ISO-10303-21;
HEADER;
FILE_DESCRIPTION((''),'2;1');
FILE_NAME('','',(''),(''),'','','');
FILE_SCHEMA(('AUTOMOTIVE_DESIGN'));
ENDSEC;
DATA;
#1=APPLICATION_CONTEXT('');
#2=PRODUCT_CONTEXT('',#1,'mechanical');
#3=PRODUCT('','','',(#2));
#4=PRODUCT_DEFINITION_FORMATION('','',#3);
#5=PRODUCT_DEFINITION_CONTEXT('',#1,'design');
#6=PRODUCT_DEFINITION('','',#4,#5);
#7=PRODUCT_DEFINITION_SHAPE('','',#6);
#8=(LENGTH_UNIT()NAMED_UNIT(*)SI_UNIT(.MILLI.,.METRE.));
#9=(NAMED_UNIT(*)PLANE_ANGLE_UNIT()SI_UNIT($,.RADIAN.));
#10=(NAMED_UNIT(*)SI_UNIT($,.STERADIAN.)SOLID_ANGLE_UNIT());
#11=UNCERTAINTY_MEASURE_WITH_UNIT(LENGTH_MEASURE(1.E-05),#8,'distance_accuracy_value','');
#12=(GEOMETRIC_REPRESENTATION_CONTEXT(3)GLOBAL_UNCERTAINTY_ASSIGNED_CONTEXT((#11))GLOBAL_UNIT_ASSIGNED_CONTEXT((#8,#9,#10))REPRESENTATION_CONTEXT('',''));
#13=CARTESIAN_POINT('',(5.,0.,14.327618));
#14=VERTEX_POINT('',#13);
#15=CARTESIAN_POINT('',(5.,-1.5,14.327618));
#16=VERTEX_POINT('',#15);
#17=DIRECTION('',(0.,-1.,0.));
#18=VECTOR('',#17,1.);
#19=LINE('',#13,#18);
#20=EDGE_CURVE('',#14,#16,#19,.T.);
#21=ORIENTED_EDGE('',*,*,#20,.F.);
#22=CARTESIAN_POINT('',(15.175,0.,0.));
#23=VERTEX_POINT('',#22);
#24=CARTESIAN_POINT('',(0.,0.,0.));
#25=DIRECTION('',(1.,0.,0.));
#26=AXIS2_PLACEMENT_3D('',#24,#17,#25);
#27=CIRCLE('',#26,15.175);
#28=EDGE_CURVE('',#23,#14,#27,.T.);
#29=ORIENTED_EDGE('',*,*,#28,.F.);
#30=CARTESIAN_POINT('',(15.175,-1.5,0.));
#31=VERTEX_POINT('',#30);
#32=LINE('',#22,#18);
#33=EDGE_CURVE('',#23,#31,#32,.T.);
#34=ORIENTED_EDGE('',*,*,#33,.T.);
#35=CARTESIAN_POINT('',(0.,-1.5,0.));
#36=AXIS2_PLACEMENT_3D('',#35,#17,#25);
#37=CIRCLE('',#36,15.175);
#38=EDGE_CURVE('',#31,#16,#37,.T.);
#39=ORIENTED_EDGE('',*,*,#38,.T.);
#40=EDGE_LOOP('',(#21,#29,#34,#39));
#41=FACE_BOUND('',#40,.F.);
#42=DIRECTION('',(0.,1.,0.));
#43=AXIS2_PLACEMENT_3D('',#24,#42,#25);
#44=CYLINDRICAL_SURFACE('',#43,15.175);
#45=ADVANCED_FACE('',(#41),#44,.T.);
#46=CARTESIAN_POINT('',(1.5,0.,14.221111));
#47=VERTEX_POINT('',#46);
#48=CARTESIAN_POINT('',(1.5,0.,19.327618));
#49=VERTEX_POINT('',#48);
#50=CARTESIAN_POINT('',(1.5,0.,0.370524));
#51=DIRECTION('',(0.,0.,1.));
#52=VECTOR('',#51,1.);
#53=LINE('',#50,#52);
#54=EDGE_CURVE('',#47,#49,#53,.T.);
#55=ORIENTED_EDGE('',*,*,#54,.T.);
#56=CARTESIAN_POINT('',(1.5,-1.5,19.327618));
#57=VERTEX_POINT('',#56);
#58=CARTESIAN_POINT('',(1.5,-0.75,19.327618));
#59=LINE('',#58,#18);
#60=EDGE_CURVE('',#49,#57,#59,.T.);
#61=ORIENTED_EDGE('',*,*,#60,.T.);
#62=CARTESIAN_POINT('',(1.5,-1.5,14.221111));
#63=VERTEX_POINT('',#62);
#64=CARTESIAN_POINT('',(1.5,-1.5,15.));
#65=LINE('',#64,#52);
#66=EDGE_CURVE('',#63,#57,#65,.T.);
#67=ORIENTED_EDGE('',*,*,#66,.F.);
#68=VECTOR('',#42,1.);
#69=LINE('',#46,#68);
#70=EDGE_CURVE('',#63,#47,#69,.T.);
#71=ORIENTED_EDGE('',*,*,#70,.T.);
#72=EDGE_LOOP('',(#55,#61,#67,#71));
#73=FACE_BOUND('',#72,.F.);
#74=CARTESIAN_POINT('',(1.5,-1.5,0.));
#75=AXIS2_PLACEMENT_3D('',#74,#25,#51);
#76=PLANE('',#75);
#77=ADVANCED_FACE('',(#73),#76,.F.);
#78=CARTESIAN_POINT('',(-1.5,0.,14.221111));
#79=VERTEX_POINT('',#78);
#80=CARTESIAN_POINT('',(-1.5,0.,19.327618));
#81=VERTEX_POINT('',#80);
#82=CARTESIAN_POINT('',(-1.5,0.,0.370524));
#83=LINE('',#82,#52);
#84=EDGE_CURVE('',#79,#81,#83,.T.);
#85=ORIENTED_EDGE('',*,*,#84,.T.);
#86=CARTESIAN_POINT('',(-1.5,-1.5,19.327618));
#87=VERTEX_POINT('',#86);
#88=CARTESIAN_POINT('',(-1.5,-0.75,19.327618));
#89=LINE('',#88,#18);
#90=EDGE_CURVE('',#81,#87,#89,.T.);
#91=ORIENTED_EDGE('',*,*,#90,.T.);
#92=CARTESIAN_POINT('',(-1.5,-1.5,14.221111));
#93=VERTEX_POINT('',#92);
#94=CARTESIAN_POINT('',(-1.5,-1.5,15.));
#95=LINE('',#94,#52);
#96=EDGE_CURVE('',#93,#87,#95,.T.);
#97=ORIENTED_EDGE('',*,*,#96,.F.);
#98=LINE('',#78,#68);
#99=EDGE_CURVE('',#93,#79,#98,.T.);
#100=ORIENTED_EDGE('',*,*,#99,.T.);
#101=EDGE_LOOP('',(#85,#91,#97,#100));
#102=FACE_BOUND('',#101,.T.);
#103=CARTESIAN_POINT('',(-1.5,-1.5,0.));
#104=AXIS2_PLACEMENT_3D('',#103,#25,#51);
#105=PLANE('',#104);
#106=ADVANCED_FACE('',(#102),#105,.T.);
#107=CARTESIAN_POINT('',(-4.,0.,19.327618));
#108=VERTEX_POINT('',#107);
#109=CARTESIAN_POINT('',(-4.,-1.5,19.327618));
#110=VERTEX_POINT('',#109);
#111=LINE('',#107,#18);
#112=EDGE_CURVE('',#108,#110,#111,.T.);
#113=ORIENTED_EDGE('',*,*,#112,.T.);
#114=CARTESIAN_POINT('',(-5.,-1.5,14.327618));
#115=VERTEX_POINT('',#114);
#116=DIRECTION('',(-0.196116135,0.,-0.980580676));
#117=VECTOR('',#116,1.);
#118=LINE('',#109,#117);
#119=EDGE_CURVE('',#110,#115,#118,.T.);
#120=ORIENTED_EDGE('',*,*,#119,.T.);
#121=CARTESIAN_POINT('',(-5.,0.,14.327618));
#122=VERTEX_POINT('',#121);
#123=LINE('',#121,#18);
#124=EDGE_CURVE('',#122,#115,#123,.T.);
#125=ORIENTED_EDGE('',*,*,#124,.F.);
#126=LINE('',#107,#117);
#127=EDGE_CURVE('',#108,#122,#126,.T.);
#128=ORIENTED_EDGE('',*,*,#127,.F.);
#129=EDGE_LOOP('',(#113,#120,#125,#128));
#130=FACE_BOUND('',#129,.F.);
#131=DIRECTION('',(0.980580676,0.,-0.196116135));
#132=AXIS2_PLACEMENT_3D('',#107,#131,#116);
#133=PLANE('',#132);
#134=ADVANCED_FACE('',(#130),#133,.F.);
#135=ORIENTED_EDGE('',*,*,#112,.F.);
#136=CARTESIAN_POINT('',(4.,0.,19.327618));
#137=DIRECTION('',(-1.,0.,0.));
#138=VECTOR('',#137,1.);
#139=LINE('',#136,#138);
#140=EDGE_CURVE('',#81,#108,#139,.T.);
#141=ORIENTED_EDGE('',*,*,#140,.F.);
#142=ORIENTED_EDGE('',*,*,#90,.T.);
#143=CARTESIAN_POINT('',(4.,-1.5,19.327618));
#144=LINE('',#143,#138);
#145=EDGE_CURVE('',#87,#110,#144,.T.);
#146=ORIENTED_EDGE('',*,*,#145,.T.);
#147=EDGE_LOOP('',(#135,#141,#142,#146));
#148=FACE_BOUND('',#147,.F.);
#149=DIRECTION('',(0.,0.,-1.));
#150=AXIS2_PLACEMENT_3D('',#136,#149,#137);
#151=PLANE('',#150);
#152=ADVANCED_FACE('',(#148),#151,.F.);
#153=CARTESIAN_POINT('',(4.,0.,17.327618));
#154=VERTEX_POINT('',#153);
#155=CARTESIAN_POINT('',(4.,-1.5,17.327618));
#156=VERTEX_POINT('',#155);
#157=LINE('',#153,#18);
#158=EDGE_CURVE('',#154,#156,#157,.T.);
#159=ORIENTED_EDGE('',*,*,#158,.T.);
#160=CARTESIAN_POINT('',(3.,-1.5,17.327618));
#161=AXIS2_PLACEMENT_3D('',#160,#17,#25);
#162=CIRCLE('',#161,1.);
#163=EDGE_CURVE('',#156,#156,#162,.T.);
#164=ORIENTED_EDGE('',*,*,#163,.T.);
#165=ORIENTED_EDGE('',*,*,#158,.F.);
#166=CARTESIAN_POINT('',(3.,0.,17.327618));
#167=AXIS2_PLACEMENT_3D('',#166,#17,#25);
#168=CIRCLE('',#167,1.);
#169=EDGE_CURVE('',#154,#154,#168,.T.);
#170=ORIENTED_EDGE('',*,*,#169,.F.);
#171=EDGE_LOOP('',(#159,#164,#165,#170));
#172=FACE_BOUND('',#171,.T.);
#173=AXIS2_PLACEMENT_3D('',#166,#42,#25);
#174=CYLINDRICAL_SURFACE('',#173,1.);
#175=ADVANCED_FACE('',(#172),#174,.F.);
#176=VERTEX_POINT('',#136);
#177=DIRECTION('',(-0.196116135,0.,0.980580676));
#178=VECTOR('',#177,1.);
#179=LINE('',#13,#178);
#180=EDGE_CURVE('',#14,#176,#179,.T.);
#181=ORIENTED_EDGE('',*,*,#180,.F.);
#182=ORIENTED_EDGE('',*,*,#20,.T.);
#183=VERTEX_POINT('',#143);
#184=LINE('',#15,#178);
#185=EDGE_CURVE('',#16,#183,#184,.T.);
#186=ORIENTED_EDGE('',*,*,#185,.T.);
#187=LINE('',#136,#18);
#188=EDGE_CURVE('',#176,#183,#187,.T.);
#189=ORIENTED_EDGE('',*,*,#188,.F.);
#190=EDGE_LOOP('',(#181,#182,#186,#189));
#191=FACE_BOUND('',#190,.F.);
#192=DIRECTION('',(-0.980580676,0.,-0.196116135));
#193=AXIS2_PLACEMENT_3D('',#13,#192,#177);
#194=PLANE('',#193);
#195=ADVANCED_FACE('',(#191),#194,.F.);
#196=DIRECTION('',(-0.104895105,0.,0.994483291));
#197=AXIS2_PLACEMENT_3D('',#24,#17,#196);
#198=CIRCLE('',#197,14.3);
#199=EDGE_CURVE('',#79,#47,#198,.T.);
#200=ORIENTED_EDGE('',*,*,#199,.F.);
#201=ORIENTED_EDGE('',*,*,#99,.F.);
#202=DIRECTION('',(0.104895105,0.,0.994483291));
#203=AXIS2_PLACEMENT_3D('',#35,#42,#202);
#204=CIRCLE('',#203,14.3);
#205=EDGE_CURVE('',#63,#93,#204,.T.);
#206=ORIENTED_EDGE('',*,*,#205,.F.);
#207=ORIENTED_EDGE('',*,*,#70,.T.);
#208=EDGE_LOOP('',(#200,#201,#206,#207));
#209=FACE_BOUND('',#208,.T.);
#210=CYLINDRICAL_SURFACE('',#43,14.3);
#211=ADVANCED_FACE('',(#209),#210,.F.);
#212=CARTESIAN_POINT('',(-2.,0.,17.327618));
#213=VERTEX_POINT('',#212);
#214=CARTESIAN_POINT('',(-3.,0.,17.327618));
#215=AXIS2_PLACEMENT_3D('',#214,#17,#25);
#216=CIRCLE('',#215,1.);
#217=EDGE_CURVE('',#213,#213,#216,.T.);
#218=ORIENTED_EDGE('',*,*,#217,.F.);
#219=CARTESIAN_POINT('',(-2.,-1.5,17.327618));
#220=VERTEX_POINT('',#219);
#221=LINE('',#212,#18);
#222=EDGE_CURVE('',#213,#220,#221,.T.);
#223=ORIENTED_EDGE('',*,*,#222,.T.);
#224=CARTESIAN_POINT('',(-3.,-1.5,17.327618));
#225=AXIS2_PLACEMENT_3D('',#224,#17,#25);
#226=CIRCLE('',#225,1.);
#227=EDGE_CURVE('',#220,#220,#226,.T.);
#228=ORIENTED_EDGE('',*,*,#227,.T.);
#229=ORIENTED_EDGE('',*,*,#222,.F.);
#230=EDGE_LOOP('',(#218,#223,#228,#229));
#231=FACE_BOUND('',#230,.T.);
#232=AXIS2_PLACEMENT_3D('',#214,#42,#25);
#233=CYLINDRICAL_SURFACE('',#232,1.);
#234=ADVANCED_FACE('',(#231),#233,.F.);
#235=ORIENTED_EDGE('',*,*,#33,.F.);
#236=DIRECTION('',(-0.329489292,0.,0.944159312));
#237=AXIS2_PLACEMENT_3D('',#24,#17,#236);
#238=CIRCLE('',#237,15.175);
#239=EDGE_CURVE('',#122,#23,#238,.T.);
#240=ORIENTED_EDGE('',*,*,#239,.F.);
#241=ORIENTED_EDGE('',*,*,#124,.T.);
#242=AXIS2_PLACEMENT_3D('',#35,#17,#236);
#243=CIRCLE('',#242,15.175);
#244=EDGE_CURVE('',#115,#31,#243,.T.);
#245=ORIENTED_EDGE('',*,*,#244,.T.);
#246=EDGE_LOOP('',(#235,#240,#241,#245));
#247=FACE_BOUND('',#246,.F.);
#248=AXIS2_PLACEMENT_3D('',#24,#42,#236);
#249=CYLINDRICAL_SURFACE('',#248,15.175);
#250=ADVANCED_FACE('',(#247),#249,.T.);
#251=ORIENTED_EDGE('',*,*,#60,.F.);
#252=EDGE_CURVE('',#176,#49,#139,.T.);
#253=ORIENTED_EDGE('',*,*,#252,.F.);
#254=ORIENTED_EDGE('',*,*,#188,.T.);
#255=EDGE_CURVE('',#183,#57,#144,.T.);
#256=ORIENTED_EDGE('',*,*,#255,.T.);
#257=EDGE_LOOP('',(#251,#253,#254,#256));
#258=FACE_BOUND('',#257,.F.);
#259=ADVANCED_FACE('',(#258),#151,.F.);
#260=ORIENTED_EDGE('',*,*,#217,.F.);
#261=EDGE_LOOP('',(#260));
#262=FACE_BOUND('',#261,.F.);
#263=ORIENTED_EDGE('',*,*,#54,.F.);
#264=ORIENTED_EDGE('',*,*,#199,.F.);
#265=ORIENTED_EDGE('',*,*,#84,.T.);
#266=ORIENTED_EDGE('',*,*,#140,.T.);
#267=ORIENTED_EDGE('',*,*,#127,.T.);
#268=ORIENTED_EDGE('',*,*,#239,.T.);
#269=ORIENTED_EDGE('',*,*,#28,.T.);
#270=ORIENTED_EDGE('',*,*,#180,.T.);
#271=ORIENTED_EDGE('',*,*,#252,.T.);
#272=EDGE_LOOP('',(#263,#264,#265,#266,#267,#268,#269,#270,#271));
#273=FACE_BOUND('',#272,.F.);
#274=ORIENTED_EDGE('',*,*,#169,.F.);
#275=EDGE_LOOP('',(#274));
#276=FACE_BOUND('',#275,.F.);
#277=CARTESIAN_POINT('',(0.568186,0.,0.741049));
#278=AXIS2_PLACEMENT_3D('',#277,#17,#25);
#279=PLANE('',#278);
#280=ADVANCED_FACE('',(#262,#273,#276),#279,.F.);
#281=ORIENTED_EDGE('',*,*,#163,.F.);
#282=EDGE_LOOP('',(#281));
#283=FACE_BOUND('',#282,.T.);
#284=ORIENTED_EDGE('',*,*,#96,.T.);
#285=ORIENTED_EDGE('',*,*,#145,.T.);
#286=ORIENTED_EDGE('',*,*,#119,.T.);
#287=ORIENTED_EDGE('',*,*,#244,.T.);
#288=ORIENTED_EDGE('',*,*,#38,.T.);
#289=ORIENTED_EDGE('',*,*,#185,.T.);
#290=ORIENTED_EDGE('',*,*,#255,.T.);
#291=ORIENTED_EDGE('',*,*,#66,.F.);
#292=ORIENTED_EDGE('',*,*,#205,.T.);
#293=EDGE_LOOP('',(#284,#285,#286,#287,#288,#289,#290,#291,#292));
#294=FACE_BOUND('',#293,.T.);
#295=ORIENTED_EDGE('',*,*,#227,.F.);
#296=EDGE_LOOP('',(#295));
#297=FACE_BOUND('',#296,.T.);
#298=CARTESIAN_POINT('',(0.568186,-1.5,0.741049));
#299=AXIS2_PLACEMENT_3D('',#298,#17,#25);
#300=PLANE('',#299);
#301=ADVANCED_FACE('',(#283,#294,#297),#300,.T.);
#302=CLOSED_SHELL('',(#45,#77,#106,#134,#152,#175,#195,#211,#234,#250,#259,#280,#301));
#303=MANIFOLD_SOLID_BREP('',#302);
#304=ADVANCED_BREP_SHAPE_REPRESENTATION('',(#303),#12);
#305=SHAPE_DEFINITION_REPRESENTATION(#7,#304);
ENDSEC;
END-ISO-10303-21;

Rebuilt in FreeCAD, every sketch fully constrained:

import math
import FreeCAD as App
import Part
import Sketcher
from FreeCAD import Vector
Q = App.Units.Quantity


def add_polygon(sketch, points):
    """Adds a closed chain of lines whose ends are joined by coincident constraints."""
    first, n = sketch.GeometryCount, len(points)
    for a, b in zip(points, points[1:] + points[:1]):
        sketch.addGeometry(Part.LineSegment(App.Vector(*a, 0), App.Vector(*b, 0)), False)
    for i in range(n):
        sketch.addConstraint(Sketcher.Constraint("Coincident", first + i, 2, first + (i + 1) % n, 1))

doc = App.newDocument("Part")
body = doc.addObject("PartDesign::Body", "Body")

# Sketch on XZ plane
sketch1 = body.newObject("Sketcher::SketchObject", "Sketch")
sketch1.AttachmentSupport = (doc.getObject("XZ_Plane"), [""])
sketch1.MapMode = "FlatFace"
sketch1.addGeometry(Part.ArcOfCircle(Part.Circle(Vector(0, 0, 0), Vector(0, 0, 1), 15.2), math.radians(109), math.radians(360)), False)
sketch1.addGeometry(Part.ArcOfCircle(Part.Circle(Vector(0, 0, 0), Vector(0, 0, 1), 15.2), math.radians(0), math.radians(71)), False)
sketch1.addGeometry(Part.LineSegment(Vector(5, 14.3, 0), Vector(4, 19.3, 0)), False)
sketch1.addGeometry(Part.LineSegment(Vector(4, 19.3, 0), Vector(-4, 19.3, 0)), False)
sketch1.addGeometry(Part.LineSegment(Vector(-4, 19.3, 0), Vector(-5, 14.3, 0)), False)
sketch1.addGeometry(Part.Circle(Vector(0, 0, 0), Vector(0, 0, 1), 14.3), False)
sketch1.addGeometry(Part.Circle(Vector(-3, 17.3, 0), Vector(0, 0, 1), 1), False)
sketch1.addGeometry(Part.Circle(Vector(3, 17.3, 0), Vector(0, 0, 1), 1), False)
sketch1.addConstraint(Sketcher.Constraint("Tangent", 0, 2, 1, 1))
sketch1.addConstraint(Sketcher.Constraint("Coincident", 1, 2, 2, 1))
sketch1.addConstraint(Sketcher.Constraint("Coincident", 2, 2, 3, 1))
sketch1.addConstraint(Sketcher.Constraint("Coincident", 3, 2, 4, 1))
sketch1.addConstraint(Sketcher.Constraint("Coincident", 4, 2, 0, 1))
sketch1.addConstraint(Sketcher.Constraint("Horizontal", 3))
sketch1.addConstraint(Sketcher.Constraint("Coincident", 0, 3, -1, 1))
sketch1.addConstraint(Sketcher.Constraint("Coincident", 5, 3, -1, 1))
sketch1.addConstraint(Sketcher.Constraint("Equal", 0, 1))
sketch1.addConstraint(Sketcher.Constraint("Equal", 6, 7))
sketch1.addConstraint(Sketcher.Constraint("Symmetric", 6, 3, 7, 3, -2))
sketch1.addConstraint(Sketcher.Constraint("PointOnObject", 0, 2, -1))
sketch1.addConstraint(Sketcher.Constraint("Horizontal", 1, 2, 4, 2))
sketch1.addConstraint(Sketcher.Constraint("Equal", 2, 4))
sketch1.addConstraint(Sketcher.Constraint("Diameter", 6, Q("2 mm")))
sketch1.addConstraint(Sketcher.Constraint("Diameter", 5, Q("28.6 mm")))
sketch1.addConstraint(Sketcher.Constraint("DistanceX", 3, 2, 3, 1, Q("8 mm")))
sketch1.addConstraint(Sketcher.Constraint("DistanceX", 6, 3, -1, 1, Q("3 mm")))
sketch1.addConstraint(Sketcher.Constraint("DistanceX", -1, 1, 1, 2, Q("5 mm")))
sketch1.addConstraint(Sketcher.Constraint("Radius", 0, Q("15.175 mm")))
sketch1.addConstraint(Sketcher.Constraint("DistanceY", 1, 2, 7, 3, Q("3 mm")))
sketch1.addConstraint(Sketcher.Constraint("DistanceY", 7, 3, 2, 2, Q("2 mm")))
pad1 = body.newObject("PartDesign::Pad", "Pad")
pad1.Profile = sketch1
pad1.Length = 1.5

# Sketch on XZ plane
sketch2 = body.newObject("Sketcher::SketchObject", "Sketch001")
sketch2.AttachmentSupport = (doc.getObject("XZ_Plane"), [""])
sketch2.MapMode = "FlatFace"
sketch2.AttachmentOffset = App.Placement(Vector(0, 0, 1.5), App.Rotation())
add_polygon(sketch2, [(-1.5, 30), (-1.5, 0), (1.5, 0), (1.5, 30)])  # lines 0-3
sketch2.addConstraint(Sketcher.Constraint("Vertical", 0))
sketch2.addConstraint(Sketcher.Constraint("Horizontal", 1))
sketch2.addConstraint(Sketcher.Constraint("Vertical", 2))
sketch2.addConstraint(Sketcher.Constraint("Horizontal", 3))
sketch2.addConstraint(Sketcher.Constraint("Symmetric", 0, 2, 1, 2, -1, 1))
sketch2.addConstraint(Sketcher.Constraint("DistanceX", 1, 1, 1, 2, Q("3 mm")))
sketch2.addConstraint(Sketcher.Constraint("DistanceY", 0, 2, 0, 1, Q("30 mm")))
pocket1 = body.newObject("PartDesign::Pocket", "Pocket")
pocket1.Profile = sketch2
pocket1.Type = "ThroughAll"

doc.recompute()
